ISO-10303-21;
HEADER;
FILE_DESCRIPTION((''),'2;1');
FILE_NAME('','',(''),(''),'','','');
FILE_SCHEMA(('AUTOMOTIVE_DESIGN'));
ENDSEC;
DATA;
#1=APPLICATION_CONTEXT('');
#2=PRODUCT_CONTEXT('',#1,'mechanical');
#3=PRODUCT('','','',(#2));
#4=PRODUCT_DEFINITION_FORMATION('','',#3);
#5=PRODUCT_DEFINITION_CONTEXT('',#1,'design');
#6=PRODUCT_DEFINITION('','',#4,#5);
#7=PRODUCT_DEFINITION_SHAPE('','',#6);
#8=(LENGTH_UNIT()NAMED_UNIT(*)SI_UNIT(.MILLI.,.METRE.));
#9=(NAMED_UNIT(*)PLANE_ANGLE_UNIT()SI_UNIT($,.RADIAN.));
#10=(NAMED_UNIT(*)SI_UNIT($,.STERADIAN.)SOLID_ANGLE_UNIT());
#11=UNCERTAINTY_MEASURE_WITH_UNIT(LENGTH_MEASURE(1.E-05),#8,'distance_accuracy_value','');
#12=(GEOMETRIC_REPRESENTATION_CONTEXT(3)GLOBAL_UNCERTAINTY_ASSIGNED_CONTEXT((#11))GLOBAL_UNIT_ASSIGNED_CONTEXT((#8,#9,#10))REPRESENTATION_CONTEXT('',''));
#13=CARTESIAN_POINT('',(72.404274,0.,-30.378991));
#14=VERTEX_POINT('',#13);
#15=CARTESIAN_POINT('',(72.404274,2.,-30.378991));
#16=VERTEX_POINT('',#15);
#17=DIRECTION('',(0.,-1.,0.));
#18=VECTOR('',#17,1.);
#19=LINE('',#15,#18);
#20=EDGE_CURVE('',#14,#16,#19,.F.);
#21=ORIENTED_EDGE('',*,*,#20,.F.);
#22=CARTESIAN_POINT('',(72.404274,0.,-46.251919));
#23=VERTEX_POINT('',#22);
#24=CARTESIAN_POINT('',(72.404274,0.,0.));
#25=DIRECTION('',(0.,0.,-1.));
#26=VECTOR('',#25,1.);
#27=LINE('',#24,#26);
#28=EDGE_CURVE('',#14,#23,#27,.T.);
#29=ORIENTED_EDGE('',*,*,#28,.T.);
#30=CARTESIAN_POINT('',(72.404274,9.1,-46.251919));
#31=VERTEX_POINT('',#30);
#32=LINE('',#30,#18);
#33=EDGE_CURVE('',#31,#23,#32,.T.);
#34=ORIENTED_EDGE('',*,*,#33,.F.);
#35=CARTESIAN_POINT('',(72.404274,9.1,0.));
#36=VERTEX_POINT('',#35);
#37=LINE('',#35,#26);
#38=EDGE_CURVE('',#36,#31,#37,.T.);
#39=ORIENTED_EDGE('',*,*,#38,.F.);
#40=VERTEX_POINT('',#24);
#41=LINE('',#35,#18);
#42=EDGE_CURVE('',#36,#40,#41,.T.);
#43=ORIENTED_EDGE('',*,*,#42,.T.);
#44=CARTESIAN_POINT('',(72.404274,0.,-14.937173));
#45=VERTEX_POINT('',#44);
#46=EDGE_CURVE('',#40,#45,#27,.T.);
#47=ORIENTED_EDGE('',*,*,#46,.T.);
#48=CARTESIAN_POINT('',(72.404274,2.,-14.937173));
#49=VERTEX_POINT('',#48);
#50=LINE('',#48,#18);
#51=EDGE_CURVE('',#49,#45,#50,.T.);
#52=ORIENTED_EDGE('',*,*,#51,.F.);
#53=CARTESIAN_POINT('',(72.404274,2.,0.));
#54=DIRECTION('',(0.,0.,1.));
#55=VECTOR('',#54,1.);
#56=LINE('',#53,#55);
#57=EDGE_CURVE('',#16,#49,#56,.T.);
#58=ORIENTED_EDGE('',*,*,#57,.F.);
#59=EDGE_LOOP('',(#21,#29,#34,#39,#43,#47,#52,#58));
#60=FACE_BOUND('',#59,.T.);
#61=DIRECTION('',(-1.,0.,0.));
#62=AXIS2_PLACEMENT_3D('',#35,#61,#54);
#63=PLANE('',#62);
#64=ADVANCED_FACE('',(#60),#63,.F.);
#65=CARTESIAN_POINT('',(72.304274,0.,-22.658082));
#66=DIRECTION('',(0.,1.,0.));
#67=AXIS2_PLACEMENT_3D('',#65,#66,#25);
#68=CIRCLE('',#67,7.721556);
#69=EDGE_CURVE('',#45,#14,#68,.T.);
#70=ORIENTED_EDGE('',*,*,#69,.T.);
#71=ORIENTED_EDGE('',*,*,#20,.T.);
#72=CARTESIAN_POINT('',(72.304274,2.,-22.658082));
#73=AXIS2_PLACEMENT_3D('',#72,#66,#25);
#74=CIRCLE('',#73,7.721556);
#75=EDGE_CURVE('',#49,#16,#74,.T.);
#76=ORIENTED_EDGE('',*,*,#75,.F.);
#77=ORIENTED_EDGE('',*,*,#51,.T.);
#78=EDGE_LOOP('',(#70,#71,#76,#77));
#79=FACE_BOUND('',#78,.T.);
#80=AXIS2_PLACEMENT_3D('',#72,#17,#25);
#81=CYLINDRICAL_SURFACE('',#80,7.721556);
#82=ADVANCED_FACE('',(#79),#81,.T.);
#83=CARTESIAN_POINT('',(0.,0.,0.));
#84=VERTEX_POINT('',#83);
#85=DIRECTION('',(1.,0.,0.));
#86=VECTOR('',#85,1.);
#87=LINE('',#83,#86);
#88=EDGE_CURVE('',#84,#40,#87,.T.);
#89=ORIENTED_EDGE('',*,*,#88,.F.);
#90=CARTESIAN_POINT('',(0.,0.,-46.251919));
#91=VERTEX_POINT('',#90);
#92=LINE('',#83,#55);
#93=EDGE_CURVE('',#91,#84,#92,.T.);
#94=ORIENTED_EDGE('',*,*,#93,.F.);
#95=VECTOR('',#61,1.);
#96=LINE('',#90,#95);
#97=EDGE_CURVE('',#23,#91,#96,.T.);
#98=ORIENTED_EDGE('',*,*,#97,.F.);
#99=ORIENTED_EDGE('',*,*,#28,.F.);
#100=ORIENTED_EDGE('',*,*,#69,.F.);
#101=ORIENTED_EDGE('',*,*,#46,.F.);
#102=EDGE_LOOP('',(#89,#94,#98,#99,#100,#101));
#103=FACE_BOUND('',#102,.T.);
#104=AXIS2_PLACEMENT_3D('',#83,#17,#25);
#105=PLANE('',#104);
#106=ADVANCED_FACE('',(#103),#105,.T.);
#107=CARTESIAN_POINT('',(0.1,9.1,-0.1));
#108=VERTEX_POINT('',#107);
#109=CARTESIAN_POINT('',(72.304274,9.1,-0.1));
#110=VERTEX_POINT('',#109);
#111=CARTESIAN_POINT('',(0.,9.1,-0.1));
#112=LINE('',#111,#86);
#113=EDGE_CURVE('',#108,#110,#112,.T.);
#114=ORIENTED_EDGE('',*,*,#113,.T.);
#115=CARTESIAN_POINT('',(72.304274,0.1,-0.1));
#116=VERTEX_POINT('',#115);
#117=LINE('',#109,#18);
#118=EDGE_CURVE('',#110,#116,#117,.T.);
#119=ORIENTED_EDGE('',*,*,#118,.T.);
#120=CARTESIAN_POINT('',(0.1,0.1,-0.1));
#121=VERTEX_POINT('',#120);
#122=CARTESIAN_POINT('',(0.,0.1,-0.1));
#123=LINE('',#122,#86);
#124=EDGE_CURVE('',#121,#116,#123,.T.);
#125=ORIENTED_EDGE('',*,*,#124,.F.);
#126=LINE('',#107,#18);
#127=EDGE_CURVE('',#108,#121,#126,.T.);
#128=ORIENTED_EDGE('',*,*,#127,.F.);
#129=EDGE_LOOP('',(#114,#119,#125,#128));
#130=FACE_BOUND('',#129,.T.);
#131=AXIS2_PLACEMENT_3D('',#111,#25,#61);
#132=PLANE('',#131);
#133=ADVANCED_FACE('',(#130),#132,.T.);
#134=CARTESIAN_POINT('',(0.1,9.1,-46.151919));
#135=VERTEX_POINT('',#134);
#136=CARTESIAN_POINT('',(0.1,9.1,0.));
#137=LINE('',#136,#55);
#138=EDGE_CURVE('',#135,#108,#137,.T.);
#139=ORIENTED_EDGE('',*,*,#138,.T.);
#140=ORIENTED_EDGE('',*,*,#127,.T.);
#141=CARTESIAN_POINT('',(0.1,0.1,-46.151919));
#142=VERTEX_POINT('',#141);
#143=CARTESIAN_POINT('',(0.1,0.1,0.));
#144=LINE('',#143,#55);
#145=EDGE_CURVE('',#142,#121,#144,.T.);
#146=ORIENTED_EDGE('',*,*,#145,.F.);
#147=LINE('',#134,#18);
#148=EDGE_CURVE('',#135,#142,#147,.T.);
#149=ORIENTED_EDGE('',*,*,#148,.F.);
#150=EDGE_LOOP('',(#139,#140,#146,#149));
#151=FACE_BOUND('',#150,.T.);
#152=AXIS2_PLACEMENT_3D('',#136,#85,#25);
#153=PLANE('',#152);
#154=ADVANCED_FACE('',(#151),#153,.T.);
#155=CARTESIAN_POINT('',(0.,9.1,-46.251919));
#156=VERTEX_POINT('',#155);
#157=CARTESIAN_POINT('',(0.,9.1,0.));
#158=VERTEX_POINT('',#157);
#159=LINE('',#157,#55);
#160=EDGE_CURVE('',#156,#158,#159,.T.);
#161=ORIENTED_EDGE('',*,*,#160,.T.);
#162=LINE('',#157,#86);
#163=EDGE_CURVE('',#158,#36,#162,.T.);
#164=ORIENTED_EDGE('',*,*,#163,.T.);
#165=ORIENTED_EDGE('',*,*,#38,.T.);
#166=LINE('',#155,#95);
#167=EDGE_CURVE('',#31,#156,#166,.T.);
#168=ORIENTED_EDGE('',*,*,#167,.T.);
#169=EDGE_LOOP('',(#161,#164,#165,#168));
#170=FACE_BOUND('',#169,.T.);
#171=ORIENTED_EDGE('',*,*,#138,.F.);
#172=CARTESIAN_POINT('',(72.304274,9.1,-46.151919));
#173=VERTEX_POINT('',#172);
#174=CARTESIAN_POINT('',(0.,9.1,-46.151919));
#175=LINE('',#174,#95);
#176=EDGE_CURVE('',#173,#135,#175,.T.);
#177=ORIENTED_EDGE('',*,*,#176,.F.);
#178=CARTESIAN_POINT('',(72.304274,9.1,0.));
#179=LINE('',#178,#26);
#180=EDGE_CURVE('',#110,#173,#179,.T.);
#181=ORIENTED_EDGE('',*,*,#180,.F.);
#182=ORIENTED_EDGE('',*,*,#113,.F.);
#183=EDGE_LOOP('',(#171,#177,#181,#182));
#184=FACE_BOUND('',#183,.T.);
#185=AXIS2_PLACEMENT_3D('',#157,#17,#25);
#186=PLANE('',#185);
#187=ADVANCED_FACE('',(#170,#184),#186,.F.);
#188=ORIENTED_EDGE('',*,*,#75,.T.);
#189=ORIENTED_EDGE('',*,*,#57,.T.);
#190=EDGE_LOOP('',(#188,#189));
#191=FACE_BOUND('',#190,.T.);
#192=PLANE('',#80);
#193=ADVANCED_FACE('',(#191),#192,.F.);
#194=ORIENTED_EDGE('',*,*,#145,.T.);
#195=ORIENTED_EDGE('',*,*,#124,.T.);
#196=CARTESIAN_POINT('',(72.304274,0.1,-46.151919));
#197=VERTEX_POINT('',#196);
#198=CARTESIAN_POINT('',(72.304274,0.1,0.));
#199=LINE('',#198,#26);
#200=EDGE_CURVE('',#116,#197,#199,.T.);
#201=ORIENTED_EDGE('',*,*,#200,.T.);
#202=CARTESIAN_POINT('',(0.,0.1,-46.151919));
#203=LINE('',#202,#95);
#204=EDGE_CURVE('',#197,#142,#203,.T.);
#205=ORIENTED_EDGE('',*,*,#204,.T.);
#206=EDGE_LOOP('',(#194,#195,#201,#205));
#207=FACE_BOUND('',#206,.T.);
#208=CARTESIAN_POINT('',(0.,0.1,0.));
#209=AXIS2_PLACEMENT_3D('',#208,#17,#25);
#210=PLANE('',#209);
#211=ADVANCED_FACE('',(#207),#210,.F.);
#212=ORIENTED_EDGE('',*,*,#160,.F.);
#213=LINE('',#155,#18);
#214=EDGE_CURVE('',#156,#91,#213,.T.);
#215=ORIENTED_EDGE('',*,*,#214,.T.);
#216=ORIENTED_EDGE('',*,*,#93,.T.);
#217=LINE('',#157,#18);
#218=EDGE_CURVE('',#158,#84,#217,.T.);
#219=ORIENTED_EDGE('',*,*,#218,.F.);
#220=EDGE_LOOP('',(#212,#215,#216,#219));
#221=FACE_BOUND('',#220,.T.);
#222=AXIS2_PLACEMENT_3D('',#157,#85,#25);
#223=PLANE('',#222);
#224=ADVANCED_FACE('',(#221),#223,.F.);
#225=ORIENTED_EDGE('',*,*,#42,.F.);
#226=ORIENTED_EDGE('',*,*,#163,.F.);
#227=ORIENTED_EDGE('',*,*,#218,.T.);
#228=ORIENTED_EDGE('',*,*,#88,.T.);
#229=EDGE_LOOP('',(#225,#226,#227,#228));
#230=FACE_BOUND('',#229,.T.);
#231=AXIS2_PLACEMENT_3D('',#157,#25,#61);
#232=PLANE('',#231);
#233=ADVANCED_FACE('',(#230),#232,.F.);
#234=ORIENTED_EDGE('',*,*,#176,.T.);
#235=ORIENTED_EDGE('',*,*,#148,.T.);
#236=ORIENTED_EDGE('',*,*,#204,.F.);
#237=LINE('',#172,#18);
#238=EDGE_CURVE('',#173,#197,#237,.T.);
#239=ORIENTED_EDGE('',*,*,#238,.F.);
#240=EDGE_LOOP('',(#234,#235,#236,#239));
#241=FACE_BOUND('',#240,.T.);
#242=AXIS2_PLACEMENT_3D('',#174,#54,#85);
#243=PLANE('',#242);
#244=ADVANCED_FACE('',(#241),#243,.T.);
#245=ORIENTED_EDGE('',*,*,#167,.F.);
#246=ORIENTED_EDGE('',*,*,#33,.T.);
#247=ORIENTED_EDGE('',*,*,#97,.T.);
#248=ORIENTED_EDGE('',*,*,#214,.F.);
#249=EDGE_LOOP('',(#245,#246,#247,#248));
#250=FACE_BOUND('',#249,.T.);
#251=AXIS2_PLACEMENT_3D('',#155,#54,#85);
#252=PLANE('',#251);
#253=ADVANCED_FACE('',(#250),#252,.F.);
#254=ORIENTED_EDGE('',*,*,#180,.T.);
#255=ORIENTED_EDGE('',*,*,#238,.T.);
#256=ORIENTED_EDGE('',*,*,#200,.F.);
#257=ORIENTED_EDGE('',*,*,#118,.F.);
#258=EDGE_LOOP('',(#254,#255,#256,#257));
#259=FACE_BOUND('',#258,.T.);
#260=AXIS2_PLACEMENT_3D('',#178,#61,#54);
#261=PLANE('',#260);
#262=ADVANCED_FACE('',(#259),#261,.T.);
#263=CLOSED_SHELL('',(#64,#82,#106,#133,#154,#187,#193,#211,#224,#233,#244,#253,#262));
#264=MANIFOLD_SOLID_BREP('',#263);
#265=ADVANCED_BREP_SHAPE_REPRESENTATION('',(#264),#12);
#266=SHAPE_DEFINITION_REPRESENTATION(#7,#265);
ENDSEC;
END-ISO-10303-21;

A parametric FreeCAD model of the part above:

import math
import FreeCAD as App
import Part
import Sketcher
from FreeCAD import Vector
Q = App.Units.Quantity


def faces_at(feature, points):
    """Names of the faces that lie closest to the given points."""
    faces = feature.Shape.Faces
    near = lambda p: min(range(len(faces)), key=lambda i: faces[i].distToShape(Part.Vertex(*p))[0])
    return sorted({f"Face{near(p) + 1}" for p in points})


def add_polygon(sketch, points):
    """Adds a closed chain of lines whose ends are joined by coincident constraints."""
    first, n = sketch.GeometryCount, len(points)
    for a, b in zip(points, points[1:] + points[:1]):
        sketch.addGeometry(Part.LineSegment(App.Vector(*a, 0), App.Vector(*b, 0)), False)
    for i in range(n):
        sketch.addConstraint(Sketcher.Constraint("Coincident", first + i, 2, first + (i + 1) % n, 1))

doc = App.newDocument("Part")
params = doc.addObject("Spreadsheet::Sheet", "Params")
for row, (alias, value) in enumerate([
    ("pad1_length", "9.1 mm"),
    ("thickness_wall", "0.1 mm"),
    ("pad2_length", "2 mm"),
], start=1):
    params.set(f"A{row}", alias)
    params.set(f"B{row}", "=" + value)
    params.setAlias(f"B{row}", alias)

body = doc.addObject("PartDesign::Body", "Body")

sketch1 = doc.addObject("Sketcher::SketchObject", "Sketch")
body.addObject(sketch1)
sketch1.AttachmentSupport = (doc.XZ_Plane, [""])
sketch1.MapMode = "FlatFace"
add_polygon(sketch1, [(0, -46), (0, 0), (72, 0), (72, -46)])
sketch1.addConstraint([
    Sketcher.Constraint("Vertical", 0),
    Sketcher.Constraint("Horizontal", 1),
    Sketcher.Constraint("Vertical", 2),
    Sketcher.Constraint("Horizontal", 3),
    Sketcher.Constraint("Coincident", 0, 2, -1, 1),
    Sketcher.Constraint("DistanceY", 0, 1, 0, 2, Q("46.251919 mm")),
    Sketcher.Constraint("DistanceX", 1, 1, 1, 2, Q("72.404274 mm")),
])
pad1 = doc.addObject("PartDesign::Pad", "Pad")
body.addObject(pad1)
pad1.Profile = sketch1
pad1.setExpression("Length", "Params.pad1_length")
pad1.Reversed = True
doc.recompute()

thickness = doc.addObject("PartDesign::Thickness", "Thickness")
body.addObject(thickness)
thickness.Base = (pad1, faces_at(pad1, [(36.202, 9.1, -23.126)]))
thickness.setExpression("Value", "Params.thickness_wall")
thickness.Reversed = True
thickness.Join = "Intersection"

sketch2 = doc.addObject("Sketcher::SketchObject", "Sketch001")
body.addObject(sketch2)
sketch2.AttachmentSupport = (doc.XZ_Plane, [""])
sketch2.MapMode = "FlatFace"
sketch2.addGeometry([
    Part.LineSegment(Vector(72, -30, 0), Vector(72, -15, 0)),
    Part.ArcOfCircle(Part.Circle(Vector(72, -23, 0), Vector(0, 0, 1), 8), math.radians(-90), math.radians(90)),
], False)
sketch2.addConstraint([
    Sketcher.Constraint("Coincident", 0, 1, 1, 1),
    Sketcher.Constraint("Coincident", 1, 2, 0, 2),
    Sketcher.Constraint("Vertical", 0),
    Sketcher.Constraint("Vertical", 1, 3, 0, 1),
    Sketcher.Constraint("Radius", 1, Q("7.721556 mm")),
    Sketcher.Constraint("DistanceY", 1, 3, -1, 1, Q("22.658082 mm")),
    Sketcher.Constraint("DistanceX", -1, 1, 1, 3, Q("72.304274 mm")),
])
pad2 = doc.addObject("PartDesign::Pad", "Pad001")
body.addObject(pad2)
pad2.Profile = sketch2
pad2.setExpression("Length", "Params.pad2_length")
pad2.Reversed = True

doc.recompute()
